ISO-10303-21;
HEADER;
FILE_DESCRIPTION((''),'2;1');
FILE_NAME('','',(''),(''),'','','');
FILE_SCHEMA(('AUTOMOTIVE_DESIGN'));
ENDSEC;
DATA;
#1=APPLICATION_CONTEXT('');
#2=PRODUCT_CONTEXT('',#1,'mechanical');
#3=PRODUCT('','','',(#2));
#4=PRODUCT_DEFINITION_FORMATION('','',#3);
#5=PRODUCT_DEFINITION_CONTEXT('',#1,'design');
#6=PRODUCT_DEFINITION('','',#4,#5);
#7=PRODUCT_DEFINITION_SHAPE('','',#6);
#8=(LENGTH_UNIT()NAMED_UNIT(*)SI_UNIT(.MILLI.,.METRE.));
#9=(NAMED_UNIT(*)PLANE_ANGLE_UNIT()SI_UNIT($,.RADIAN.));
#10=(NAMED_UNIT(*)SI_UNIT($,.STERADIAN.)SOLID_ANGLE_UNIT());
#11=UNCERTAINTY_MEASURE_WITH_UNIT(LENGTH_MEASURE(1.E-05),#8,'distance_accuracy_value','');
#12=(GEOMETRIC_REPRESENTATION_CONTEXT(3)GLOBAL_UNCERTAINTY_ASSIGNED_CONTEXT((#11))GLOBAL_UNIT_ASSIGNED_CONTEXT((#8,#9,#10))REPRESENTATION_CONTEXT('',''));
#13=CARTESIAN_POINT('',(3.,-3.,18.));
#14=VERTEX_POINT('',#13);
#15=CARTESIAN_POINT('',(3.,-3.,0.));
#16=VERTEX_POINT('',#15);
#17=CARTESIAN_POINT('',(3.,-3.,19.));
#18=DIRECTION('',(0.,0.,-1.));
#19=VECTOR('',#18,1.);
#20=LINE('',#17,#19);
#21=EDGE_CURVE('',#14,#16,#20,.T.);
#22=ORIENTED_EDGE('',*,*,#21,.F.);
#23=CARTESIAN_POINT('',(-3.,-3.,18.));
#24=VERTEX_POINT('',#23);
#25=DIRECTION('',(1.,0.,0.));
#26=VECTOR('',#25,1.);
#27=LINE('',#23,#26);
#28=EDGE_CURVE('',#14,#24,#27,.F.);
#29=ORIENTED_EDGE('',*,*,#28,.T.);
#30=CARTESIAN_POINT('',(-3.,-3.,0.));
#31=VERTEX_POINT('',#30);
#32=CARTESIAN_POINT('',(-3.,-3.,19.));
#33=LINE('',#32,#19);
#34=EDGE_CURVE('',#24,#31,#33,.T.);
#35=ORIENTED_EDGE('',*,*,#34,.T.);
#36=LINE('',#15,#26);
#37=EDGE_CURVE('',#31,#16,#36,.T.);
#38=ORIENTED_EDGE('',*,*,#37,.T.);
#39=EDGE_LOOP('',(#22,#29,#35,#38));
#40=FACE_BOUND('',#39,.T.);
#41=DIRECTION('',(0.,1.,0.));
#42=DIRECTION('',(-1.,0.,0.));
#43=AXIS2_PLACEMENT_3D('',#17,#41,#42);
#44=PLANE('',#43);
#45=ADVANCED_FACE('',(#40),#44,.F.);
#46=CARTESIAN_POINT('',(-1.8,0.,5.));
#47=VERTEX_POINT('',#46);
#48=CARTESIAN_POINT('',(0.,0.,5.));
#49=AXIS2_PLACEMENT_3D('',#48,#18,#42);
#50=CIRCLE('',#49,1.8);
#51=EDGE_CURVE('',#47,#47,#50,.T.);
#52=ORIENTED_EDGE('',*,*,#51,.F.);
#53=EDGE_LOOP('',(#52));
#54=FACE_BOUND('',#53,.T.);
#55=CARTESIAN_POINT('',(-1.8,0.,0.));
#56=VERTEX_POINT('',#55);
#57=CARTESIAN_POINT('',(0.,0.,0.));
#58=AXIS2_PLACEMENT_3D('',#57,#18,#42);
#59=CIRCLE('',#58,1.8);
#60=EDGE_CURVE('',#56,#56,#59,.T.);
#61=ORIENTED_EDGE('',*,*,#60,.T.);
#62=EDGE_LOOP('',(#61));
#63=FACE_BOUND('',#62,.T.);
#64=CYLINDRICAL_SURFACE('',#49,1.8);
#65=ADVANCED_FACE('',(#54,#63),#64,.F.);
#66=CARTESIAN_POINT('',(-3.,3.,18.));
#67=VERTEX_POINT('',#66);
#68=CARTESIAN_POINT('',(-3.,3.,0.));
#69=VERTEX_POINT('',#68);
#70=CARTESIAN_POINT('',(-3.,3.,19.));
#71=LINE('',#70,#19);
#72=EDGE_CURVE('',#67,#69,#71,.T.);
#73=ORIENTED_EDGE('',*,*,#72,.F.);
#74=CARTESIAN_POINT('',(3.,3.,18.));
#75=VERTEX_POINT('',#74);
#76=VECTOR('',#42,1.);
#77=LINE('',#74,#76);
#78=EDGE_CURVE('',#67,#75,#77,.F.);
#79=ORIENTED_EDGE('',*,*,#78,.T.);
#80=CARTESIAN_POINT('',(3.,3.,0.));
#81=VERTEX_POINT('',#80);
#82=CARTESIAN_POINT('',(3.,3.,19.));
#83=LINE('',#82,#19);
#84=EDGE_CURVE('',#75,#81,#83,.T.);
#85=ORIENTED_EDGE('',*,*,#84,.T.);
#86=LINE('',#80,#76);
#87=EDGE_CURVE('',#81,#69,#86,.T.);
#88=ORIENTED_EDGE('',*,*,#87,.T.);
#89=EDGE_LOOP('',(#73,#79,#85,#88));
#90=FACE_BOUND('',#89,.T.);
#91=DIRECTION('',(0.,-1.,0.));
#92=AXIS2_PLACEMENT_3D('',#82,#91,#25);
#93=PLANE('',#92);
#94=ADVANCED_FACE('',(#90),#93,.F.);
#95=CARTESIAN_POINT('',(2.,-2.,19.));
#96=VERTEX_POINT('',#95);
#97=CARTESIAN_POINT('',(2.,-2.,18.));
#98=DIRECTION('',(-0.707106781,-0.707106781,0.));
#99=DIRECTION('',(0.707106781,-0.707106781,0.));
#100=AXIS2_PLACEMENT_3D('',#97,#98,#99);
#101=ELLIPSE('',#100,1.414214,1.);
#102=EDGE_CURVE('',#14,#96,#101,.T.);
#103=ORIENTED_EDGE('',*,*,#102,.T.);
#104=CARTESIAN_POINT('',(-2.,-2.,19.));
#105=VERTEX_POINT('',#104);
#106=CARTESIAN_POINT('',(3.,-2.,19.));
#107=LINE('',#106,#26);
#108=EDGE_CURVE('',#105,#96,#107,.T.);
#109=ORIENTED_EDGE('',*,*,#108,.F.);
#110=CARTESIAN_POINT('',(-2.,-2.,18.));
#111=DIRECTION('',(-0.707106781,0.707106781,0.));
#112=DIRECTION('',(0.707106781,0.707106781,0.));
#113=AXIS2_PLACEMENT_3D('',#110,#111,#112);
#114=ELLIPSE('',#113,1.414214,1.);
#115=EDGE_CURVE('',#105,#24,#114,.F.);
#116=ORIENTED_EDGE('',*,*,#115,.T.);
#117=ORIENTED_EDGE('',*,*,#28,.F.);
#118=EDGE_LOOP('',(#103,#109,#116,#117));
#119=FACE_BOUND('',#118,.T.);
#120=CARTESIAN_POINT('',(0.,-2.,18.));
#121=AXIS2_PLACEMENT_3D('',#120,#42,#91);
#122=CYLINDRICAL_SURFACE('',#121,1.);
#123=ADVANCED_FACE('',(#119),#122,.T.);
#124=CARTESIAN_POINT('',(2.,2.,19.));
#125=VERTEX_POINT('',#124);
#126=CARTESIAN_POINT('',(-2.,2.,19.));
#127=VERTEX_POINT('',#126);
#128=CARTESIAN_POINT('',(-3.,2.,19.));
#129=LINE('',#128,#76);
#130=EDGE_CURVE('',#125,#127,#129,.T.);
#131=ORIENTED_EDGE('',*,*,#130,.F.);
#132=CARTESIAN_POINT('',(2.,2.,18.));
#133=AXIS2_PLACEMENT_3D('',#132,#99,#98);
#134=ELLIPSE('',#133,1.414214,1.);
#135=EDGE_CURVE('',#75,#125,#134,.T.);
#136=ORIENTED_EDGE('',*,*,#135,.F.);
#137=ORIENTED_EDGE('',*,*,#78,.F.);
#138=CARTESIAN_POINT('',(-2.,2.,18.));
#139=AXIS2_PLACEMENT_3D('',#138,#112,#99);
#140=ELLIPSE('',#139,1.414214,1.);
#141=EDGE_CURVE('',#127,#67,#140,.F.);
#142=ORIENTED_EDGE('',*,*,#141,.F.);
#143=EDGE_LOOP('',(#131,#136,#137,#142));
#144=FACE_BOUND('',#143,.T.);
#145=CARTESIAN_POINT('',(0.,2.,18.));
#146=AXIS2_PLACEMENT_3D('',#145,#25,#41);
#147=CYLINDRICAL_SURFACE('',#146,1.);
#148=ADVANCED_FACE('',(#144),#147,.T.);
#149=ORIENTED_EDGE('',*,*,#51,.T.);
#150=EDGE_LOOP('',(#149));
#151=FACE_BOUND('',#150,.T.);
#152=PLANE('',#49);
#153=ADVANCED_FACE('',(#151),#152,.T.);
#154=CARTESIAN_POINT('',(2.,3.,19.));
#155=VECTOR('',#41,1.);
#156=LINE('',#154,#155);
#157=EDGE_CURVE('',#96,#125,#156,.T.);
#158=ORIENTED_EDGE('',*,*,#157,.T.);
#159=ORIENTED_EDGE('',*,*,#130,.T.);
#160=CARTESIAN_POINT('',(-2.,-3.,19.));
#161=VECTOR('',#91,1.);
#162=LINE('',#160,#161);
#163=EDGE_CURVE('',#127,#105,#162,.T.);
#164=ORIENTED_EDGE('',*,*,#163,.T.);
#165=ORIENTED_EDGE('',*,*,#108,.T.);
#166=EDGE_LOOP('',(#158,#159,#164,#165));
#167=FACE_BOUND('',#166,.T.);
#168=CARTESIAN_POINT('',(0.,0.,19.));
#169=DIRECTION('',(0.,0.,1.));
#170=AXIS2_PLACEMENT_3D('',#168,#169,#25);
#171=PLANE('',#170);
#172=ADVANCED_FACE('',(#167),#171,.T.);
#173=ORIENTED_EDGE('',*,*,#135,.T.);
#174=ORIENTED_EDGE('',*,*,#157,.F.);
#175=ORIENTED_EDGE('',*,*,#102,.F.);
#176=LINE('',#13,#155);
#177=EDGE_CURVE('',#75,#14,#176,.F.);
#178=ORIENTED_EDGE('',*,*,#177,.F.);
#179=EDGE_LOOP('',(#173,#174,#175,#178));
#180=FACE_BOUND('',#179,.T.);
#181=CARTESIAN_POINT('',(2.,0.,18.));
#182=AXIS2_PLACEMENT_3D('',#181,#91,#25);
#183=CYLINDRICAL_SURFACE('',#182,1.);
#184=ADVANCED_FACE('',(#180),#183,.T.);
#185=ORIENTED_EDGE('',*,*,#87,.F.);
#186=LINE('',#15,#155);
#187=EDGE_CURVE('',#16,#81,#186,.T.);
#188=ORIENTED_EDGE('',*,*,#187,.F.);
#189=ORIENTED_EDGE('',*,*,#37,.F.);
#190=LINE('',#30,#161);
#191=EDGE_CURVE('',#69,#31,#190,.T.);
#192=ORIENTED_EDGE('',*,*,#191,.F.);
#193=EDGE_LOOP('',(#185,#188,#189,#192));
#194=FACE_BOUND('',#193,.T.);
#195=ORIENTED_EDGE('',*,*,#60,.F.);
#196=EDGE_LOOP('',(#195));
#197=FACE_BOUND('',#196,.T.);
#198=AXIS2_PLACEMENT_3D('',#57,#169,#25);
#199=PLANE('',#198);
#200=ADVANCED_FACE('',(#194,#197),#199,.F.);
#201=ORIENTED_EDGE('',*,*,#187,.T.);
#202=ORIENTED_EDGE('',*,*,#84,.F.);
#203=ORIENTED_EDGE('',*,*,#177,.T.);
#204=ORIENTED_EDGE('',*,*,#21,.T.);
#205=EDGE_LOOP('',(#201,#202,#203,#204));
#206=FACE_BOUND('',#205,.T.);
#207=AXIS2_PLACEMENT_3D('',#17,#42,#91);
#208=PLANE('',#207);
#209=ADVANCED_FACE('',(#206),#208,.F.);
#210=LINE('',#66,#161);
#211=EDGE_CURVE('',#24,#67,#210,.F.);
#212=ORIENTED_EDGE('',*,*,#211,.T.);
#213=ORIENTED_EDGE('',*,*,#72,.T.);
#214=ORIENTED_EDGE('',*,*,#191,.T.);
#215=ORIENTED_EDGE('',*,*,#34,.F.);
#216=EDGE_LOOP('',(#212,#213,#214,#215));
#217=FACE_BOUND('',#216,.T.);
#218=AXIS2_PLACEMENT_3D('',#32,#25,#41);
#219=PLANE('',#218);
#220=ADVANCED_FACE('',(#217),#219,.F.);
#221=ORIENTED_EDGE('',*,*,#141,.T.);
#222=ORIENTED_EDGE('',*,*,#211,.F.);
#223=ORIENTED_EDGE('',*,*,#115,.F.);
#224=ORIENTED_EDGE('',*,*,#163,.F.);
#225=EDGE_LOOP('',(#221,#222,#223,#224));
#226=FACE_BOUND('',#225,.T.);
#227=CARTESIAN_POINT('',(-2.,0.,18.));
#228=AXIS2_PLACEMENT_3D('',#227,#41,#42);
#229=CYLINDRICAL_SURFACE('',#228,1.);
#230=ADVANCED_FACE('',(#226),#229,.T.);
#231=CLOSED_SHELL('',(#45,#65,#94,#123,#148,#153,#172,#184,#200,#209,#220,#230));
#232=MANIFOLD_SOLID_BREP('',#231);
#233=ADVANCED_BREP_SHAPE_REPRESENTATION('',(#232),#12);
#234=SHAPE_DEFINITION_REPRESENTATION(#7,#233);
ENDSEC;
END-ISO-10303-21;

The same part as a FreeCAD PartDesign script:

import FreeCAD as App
import Part
import Sketcher


def edges_at(feature, points):
    """Names of the edges that pass closest to the given points."""
    edges = feature.Shape.Edges
    near = lambda p: min(range(len(edges)), key=lambda i: edges[i].distToShape(Part.Vertex(*p))[0])
    return sorted({f"Edge{near(p) + 1}" for p in points})


def add_polygon(sketch, points):
    """Adds a closed chain of lines whose ends are joined by coincident constraints."""
    first, n = sketch.GeometryCount, len(points)
    for a, b in zip(points, points[1:] + points[:1]):
        sketch.addGeometry(Part.LineSegment(App.Vector(*a, 0), App.Vector(*b, 0)), False)
    for i in range(n):
        sketch.addConstraint(Sketcher.Constraint("Coincident", first + i, 2, first + (i + 1) % n, 1))

doc = App.newDocument("Part")
body = doc.addObject("PartDesign::Body", "Body")

# Sketch on XY plane
sketch1 = doc.addObject("Sketcher::SketchObject", "Sketch")
body.addObject(sketch1)
sketch1.AttachmentSupport = (doc.XY_Plane, [""])
sketch1.MapMode = "FlatFace"
add_polygon(sketch1, [(-3, 3), (-3, -3), (3, -3), (3, 3)])  # lines 0-3
sketch1.addConstraint(Sketcher.Constraint("Vertical", 0))
sketch1.addConstraint(Sketcher.Constraint("Horizontal", 1))
sketch1.addConstraint(Sketcher.Constraint("Vertical", 2))
sketch1.addConstraint(Sketcher.Constraint("Horizontal", 3))
sketch1.addConstraint(Sketcher.Constraint("Symmetric", 0, 2, 2, 2, -1, 1))
sketch1.addConstraint(Sketcher.Constraint("Equal", 3, 0))
sketch1.addConstraint(Sketcher.Constraint("DistanceX", 1, 1, 1, 2, 6.0))
pad1 = doc.addObject("PartDesign::Pad", "Pad")
body.addObject(pad1)
pad1.Profile = sketch1
pad1.Length = 19

# Sketch on XY plane
sketch2 = doc.addObject("Sketcher::SketchObject", "Sketch001")
body.addObject(sketch2)
sketch2.AttachmentSupport = (doc.XY_Plane, [""])
sketch2.MapMode = "FlatFace"
sketch2.addGeometry(Part.Circle(App.Vector(0, 0, 0), App.Vector(0, 0, 1), 1.8), False)
sketch2.addConstraint(Sketcher.Constraint("Coincident", 0, 3, -1, 1))
sketch2.addConstraint(Sketcher.Constraint("Diameter", 0, 3.6))
pocket1 = doc.addObject("PartDesign::Pocket", "Pocket")
body.addObject(pocket1)
pocket1.Profile = sketch2
pocket1.Length = 5
pocket1.Reversed = True
doc.recompute()

fillet = doc.addObject("PartDesign::Fillet", "Fillet")
body.addObject(fillet)
fillet.Base = (pocket1, edges_at(pocket1, [
    (3, 0, 19),
    (0, 3, 19),
    (-3, 0, 19),
    (0, -3, 19),
]))
fillet.Radius = 1

doc.recompute()
